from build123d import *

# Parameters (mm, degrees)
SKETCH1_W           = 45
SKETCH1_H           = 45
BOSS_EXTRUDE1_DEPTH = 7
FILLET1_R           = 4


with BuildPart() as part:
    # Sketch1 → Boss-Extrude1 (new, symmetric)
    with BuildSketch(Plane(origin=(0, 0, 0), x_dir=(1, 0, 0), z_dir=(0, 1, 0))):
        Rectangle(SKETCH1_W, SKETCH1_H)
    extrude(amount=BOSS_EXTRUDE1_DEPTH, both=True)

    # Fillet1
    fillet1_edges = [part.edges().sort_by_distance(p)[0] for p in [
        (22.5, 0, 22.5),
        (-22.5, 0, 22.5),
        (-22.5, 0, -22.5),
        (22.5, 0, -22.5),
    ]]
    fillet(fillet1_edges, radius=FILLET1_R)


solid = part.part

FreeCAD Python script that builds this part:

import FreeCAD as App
import Part
import Sketcher
Q = App.Units.Quantity


def edges_at(feature, points):
    """Names of the edges that pass closest to the given points."""
    edges = feature.Shape.Edges
    near = lambda p: min(range(len(edges)), key=lambda i: edges[i].distToShape(Part.Vertex(*p))[0])
    return sorted({f"Edge{near(p) + 1}" for p in points})

doc = App.newDocument("Part")
body = doc.addObject("PartDesign::Body", "Body")

# Sketch on XZ plane
sketch1 = body.newObject("Sketcher::SketchObject", "Sketch")
sketch1.AttachmentSupport = (doc.getObject("XZ_Plane"), [""])
sketch1.MapMode = "FlatFace"
sketch1.addGeometry(Part.LineSegment(App.Vector(-22.5, -22.5, 0), App.Vector(-22.5, 22.5, 0)), False)
sketch1.addGeometry(Part.LineSegment(App.Vector(-22.5, 22.5, 0), App.Vector(22.5, 22.5, 0)), False)
sketch1.addGeometry(Part.LineSegment(App.Vector(22.5, 22.5, 0), App.Vector(22.5, -22.5, 0)), False)
sketch1.addGeometry(Part.LineSegment(App.Vector(22.5, -22.5, 0), App.Vector(-22.5, -22.5, 0)), False)
sketch1.addConstraint(Sketcher.Constraint("Coincident", 0, 2, 1, 1))
sketch1.addConstraint(Sketcher.Constraint("Coincident", 1, 2, 2, 1))
sketch1.addConstraint(Sketcher.Constraint("Coincident", 2, 2, 3, 1))
sketch1.addConstraint(Sketcher.Constraint("Coincident", 3, 2, 0, 1))
sketch1.addConstraint(Sketcher.Constraint("Vertical", 0))
sketch1.addConstraint(Sketcher.Constraint("Horizontal", 1))
sketch1.addConstraint(Sketcher.Constraint("Vertical", 2))
sketch1.addConstraint(Sketcher.Constraint("Horizontal", 3))
sketch1.addConstraint(Sketcher.Constraint("Symmetric", 0, 2, 2, 2, -1, 1))
sketch1.addConstraint(Sketcher.Constraint("Equal", 3, 0))
sketch1.addConstraint(Sketcher.Constraint("DistanceX", 1, 1, 1, 2, Q("45 mm")))
pad1 = body.newObject("PartDesign::Pad", "Pad")
pad1.Profile = sketch1
pad1.Length = 14
pad1.Midplane = True
doc.recompute()

fillet = body.newObject("PartDesign::Fillet", "Fillet")
fillet.Base = (pad1, edges_at(pad1, [
    (22.5, 0, 22.5),
    (-22.5, 0, 22.5),
    (-22.5, 0, -22.5),
    (22.5, 0, -22.5),
]))
fillet.Radius = 4

doc.recompute()
